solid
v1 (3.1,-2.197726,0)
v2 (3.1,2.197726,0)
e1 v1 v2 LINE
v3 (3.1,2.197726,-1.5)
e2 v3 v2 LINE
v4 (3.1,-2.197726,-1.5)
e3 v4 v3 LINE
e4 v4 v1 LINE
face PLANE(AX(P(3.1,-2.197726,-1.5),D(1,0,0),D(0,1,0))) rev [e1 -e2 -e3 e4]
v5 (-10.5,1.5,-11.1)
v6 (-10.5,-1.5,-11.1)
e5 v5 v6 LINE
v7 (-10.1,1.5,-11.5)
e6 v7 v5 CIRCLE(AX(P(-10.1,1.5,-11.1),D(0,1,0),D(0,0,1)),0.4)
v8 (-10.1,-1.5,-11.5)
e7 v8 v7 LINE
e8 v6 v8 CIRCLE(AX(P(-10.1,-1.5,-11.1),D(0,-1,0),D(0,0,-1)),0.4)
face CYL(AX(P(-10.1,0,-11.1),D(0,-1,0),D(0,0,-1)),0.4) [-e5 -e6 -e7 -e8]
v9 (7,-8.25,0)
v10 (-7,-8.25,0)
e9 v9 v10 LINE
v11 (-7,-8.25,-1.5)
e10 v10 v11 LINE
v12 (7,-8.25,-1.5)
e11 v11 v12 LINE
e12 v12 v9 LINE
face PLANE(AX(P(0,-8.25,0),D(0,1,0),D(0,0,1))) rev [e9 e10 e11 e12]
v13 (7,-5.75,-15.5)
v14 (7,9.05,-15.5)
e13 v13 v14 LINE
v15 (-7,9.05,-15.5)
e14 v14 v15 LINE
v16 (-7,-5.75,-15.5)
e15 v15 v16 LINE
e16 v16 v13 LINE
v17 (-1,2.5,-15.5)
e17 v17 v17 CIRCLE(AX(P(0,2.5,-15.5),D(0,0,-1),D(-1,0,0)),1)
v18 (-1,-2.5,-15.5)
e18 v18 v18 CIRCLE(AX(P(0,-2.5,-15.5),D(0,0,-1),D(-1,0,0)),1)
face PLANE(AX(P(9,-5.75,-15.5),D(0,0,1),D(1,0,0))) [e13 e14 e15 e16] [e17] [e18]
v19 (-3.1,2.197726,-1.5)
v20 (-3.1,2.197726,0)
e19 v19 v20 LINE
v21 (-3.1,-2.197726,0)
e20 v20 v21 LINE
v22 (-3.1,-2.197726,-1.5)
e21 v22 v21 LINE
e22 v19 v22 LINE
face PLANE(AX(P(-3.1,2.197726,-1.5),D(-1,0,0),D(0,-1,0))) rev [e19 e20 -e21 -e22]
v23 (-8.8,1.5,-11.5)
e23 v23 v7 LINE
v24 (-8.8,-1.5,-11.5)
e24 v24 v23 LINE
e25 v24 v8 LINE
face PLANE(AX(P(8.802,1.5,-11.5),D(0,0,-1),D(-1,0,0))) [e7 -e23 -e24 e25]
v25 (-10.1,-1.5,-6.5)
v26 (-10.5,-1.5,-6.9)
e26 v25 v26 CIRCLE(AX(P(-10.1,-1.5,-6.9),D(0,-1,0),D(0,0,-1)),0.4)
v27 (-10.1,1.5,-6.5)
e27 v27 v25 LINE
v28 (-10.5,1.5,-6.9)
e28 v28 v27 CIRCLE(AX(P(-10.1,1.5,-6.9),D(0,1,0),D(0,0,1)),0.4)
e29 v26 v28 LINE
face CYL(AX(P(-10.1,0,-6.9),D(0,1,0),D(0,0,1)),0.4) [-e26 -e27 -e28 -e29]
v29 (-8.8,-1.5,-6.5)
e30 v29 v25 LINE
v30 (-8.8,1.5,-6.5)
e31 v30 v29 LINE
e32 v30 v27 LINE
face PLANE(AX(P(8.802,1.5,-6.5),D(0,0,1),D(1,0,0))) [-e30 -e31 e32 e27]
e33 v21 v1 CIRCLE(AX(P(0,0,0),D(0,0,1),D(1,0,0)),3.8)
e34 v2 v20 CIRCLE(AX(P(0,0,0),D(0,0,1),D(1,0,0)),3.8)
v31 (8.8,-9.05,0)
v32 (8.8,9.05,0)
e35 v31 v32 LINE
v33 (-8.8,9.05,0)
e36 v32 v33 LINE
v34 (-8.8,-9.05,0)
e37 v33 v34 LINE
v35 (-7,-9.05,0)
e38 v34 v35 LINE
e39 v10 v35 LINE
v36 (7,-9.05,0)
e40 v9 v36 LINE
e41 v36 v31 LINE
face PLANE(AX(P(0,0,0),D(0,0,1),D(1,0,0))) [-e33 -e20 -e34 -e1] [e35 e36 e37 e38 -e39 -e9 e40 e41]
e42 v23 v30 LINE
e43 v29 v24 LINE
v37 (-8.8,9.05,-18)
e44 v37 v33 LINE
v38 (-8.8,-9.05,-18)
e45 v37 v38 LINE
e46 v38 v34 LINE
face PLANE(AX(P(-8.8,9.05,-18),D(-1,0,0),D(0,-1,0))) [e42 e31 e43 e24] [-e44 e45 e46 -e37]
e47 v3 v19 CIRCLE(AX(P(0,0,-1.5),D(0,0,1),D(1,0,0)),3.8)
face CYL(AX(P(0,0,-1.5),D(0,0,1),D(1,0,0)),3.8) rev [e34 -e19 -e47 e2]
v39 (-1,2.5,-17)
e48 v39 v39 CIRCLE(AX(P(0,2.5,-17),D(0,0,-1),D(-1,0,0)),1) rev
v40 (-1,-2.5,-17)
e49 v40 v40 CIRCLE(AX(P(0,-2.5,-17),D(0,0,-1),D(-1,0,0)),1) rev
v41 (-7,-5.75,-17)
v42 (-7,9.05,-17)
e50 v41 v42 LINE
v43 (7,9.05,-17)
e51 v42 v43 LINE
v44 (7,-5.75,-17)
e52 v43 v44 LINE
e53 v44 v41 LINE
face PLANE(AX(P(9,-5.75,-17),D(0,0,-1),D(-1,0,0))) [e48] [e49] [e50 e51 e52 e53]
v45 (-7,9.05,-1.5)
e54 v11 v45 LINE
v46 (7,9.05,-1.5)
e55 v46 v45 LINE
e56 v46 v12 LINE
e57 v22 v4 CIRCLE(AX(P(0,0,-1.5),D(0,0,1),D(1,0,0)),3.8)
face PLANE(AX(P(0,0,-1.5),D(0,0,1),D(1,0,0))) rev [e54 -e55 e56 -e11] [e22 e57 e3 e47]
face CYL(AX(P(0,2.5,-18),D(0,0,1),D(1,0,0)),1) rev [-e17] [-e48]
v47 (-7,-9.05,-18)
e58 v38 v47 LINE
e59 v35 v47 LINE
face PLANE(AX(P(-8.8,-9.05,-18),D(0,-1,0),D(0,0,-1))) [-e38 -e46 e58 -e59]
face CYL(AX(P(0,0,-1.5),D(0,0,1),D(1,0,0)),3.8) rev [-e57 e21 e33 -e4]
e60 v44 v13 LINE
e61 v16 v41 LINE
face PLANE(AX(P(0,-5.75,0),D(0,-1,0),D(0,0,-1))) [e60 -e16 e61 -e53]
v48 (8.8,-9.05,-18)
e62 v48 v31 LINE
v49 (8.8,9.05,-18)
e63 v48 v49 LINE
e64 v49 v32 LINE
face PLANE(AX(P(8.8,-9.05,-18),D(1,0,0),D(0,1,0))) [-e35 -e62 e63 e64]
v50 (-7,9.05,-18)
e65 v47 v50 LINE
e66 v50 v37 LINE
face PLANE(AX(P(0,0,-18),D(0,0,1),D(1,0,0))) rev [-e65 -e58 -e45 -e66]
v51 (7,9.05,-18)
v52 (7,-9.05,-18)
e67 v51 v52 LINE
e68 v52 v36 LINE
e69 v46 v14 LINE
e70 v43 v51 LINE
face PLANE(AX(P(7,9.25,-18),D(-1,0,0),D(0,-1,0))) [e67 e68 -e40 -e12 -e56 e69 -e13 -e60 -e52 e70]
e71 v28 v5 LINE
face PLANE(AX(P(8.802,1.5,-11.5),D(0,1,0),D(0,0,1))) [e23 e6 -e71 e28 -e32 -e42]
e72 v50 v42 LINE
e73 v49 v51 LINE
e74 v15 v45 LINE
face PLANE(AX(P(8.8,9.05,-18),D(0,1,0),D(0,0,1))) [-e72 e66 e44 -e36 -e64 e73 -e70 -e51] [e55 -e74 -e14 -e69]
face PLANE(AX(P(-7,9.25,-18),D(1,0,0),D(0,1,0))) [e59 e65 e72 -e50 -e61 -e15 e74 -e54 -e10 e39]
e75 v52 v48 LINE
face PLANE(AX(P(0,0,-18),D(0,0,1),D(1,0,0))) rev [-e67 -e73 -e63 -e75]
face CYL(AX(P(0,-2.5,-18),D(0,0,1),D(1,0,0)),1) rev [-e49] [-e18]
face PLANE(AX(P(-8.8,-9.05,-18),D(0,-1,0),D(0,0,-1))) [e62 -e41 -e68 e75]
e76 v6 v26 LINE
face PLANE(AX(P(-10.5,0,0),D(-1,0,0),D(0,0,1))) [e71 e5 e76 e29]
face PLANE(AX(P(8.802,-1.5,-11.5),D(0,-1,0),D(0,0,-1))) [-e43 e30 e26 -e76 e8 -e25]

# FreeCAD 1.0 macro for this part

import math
import FreeCAD as App
import Part
import Sketcher
from FreeCAD import Vector
Q = App.Units.Quantity


def edges_at(feature, points):
    """Names of the edges that pass closest to the given points."""
    edges = feature.Shape.Edges
    near = lambda p: min(range(len(edges)), key=lambda i: edges[i].distToShape(Part.Vertex(*p))[0])
    return sorted({f"Edge{near(p) + 1}" for p in points})


def add_polygon(sketch, points):
    """Adds a closed chain of lines whose ends are joined by coincident constraints."""
    first, n = sketch.GeometryCount, len(points)
    for a, b in zip(points, points[1:] + points[:1]):
        sketch.addGeometry(Part.LineSegment(App.Vector(*a, 0), App.Vector(*b, 0)), False)
    for i in range(n):
        sketch.addConstraint(Sketcher.Constraint("Coincident", first + i, 2, first + (i + 1) % n, 1))

doc = App.newDocument("Part")
params = doc.addObject("Spreadsheet::Sheet", "Params")
for row, (alias, value) in enumerate([
    ("sketch1_radius", "3.8 mm"),
    ("sketch1_width", "18 mm"),
    ("sketch1_height", "18.5 mm"),
    ("pad1_length", "1.5 mm"),
    ("sketch2_width", "2 mm"),
    ("sketch2_height", "18.5 mm"),
    ("pad2_length", "18 mm"),
    ("sketch3_width", "18 mm"),
    ("sketch3_height", "1.5 mm"),
    ("pad3_length", "15 mm"),
    ("sketch4_diameter", "2 mm"),
    ("sketch5_width", "14 mm"),
    ("sketch5_height", "1.5 mm"),
    ("pocket2_length", "1 mm"),
    ("sketch6_width", "27.6 mm"),
    ("sketch6_width2", "17.6 mm"),
    ("sketch6_height", "28.1 mm"),
    ("sketch6_height2", "18.1 mm"),
    ("sketch7_width", "3 mm"),
    ("sketch7_height", "5 mm"),
    ("pad4_length", "1.5 mm"),
    ("sketch8_width", "3 mm"),
    ("sketch8_height", "5 mm"),
    ("fillet_radius", "0.4 mm"),
], start=1):
    params.set(f"A{row}", alias)
    params.set(f"B{row}", "=" + value)
    params.setAlias(f"B{row}", alias)

body = doc.addObject("PartDesign::Body", "Body")
body.AllowCompound = True

# Sketch on XY plane
sketch1 = body.newObject("Sketcher::SketchObject", "Sketch")
sketch1.AttachmentSupport = (doc.getObject("XY_Plane"), [""])
sketch1.MapMode = "FlatFace"
add_polygon(sketch1, [(-9, 9.2), (-9, -9.2), (9, -9.2), (9, 9.2)])  # lines 0-3
sketch1.addGeometry(Part.LineSegment(Vector(3.1, 2.2, 0), Vector(3.1, -2.2, 0)), False)  # 4
sketch1.addGeometry(Part.ArcOfCircle(Part.Circle(Vector(0, 0, 0), Vector(0, 0, 1), 3.8), math.radians(-145), math.radians(-35)), False)  # 5
sketch1.addGeometry(Part.LineSegment(Vector(-3.1, -2.2, 0), Vector(-3.1, 2.2, 0)), False)  # 6
sketch1.addGeometry(Part.ArcOfCircle(Part.Circle(Vector(0, 0, 0), Vector(0, 0, 1), 3.8), math.radians(35), math.radians(145)), False)  # 7
sketch1.addConstraint(Sketcher.Constraint("Coincident", 4, 2, 5, 2))
sketch1.addConstraint(Sketcher.Constraint("Coincident", 5, 1, 6, 1))
sketch1.addConstraint(Sketcher.Constraint("Coincident", 6, 2, 7, 2))
sketch1.addConstraint(Sketcher.Constraint("Coincident", 7, 1, 4, 1))
sketch1.addConstraint(Sketcher.Constraint("Vertical", 0))
sketch1.addConstraint(Sketcher.Constraint("Horizontal", 1))
sketch1.addConstraint(Sketcher.Constraint("Vertical", 2))
sketch1.addConstraint(Sketcher.Constraint("Horizontal", 3))
sketch1.addConstraint(Sketcher.Constraint("Vertical", 4))
sketch1.addConstraint(Sketcher.Constraint("Vertical", 6))
sketch1.addConstraint(Sketcher.Constraint("Coincident", 5, 3, -1, 1))
sketch1.addConstraint(Sketcher.Constraint("Coincident", 7, 3, -1, 1))
sketch1.addConstraint(Sketcher.Constraint("Equal", 5, 7))
sketch1.addConstraint(Sketcher.Constraint("Symmetric", 0, 2, 2, 2, -1, 1))
sketch1.addConstraint(Sketcher.Constraint("Horizontal", 4, 2, 5, 1))
sketch1.addConstraint(Sketcher.Constraint("Radius", 5, Q("3.8 mm")))
sketch1.addConstraint(Sketcher.Constraint("DistanceX", 1, 1, 1, 2, Q("18 mm")))
sketch1.addConstraint(Sketcher.Constraint("DistanceY", 0, 2, 0, 1, Q("18.5 mm")))
sketch1.addConstraint(Sketcher.Constraint("DistanceX", -1, 1, 4, 2, Q("3.1 mm")))
sketch1.setExpression("Constraints[19]", "Params.sketch1_radius")
sketch1.setExpression("Constraints[20]", "Params.sketch1_width")
sketch1.setExpression("Constraints[21]", "Params.sketch1_height")
pad1 = body.newObject("PartDesign::Pad", "Pad")
pad1.Profile = sketch1
pad1.setExpression("Length", "Params.pad1_length")
pad1.Reversed = True

# Sketch on XY plane
sketch2 = body.newObject("Sketcher::SketchObject", "Sketch001")
sketch2.AttachmentSupport = (doc.getObject("XY_Plane"), [""])
sketch2.MapMode = "FlatFace"
add_polygon(sketch2, [(-9, 9.2), (-9, -9.2), (-7, -9.2), (-7, 9.2)])  # lines 0-3
add_polygon(sketch2, [(7, 9.2), (7, -9.2), (9, -9.2), (9, 9.2)])  # lines 4-7
sketch2.addConstraint(Sketcher.Constraint("Vertical", 0))
sketch2.addConstraint(Sketcher.Constraint("Horizontal", 1))
sketch2.addConstraint(Sketcher.Constraint("Vertical", 2))
sketch2.addConstraint(Sketcher.Constraint("Horizontal", 3))
sketch2.addConstraint(Sketcher.Constraint("Vertical", 4))
sketch2.addConstraint(Sketcher.Constraint("Horizontal", 5))
sketch2.addConstraint(Sketcher.Constraint("Vertical", 6))
sketch2.addConstraint(Sketcher.Constraint("Horizontal", 7))
sketch2.addConstraint(Sketcher.Constraint("Symmetric", 2, 2, 4, 2, -1, 1))
sketch2.addConstraint(Sketcher.Constraint("Symmetric", 0, 2, 6, 2, -1, 1))
sketch2.addConstraint(Sketcher.Constraint("Horizontal", 1, 2, 4, 2))
sketch2.addConstraint(Sketcher.Constraint("DistanceX", 1, 1, 1, 2, Q("2 mm")))
sketch2.addConstraint(Sketcher.Constraint("DistanceY", 0, 2, 0, 1, Q("18.5 mm")))
sketch2.addConstraint(Sketcher.Constraint("DistanceX", 0, 2, -1, 1, Q("9 mm")))
sketch2.setExpression("Constraints[19]", "Params.sketch2_width")
sketch2.setExpression("Constraints[20]", "Params.sketch2_height")
pad2 = body.newObject("PartDesign::Pad", "Pad001")
pad2.Profile = sketch2
pad2.setExpression("Length", "Params.pad2_length")
pad2.Reversed = True

# Sketch on XZ plane
sketch3 = body.newObject("Sketcher::SketchObject", "Sketch002")
sketch3.AttachmentSupport = (doc.getObject("XZ_Plane"), [""])
sketch3.MapMode = "FlatFace"
sketch3.AttachmentOffset = App.Placement(Vector(0, 0, -9.25), App.Rotation())
add_polygon(sketch3, [(-9, -17), (-9, -15.5), (9, -15.5), (9, -17)])  # lines 0-3
sketch3.addConstraint(Sketcher.Constraint("Vertical", 0))
sketch3.addConstraint(Sketcher.Constraint("Horizontal", 1))
sketch3.addConstraint(Sketcher.Constraint("Vertical", 2))
sketch3.addConstraint(Sketcher.Constraint("Horizontal", 3))
sketch3.addConstraint(Sketcher.Constraint("DistanceX", 1, 1, 1, 2, Q("18 mm")))
sketch3.addConstraint(Sketcher.Constraint("DistanceY", 0, 1, 0, 2, Q("1.5 mm")))
sketch3.addConstraint(Sketcher.Constraint("DistanceX", 0, 2, -1, 1, Q("9 mm")))
sketch3.addConstraint(Sketcher.Constraint("DistanceY", 2, 2, -1, 1, Q("17 mm")))
sketch3.setExpression("Constraints[8]", "Params.sketch3_width")
sketch3.setExpression("Constraints[9]", "Params.sketch3_height")
pad3 = body.newObject("PartDesign::Pad", "Pad002")
pad3.Profile = sketch3
pad3.setExpression("Length", "Params.pad3_length")

# Sketch on XY plane
sketch4 = body.newObject("Sketcher::SketchObject", "Sketch003")
sketch4.AttachmentSupport = (doc.getObject("XY_Plane"), [""])
sketch4.MapMode = "FlatFace"
sketch4.AttachmentOffset = App.Placement(Vector(0, 0, -15.5), App.Rotation())
sketch4.addGeometry(Part.Circle(Vector(0, 2.5, 0), Vector(0, 0, 1), 1), False)
sketch4.addGeometry(Part.Circle(Vector(0, -2.5, 0), Vector(0, 0, 1), 1), False)
sketch4.addConstraint(Sketcher.Constraint("Equal", 0, 1))
sketch4.addConstraint(Sketcher.Constraint("Symmetric", 0, 3, 1, 3, -1, 1))
sketch4.addConstraint(Sketcher.Constraint("PointOnObject", 0, 3, -2))
sketch4.addConstraint(Sketcher.Constraint("Diameter", 0, Q("2 mm")))
sketch4.addConstraint(Sketcher.Constraint("DistanceY", 1, 3, 0, 3, Q("5 mm")))
sketch4.setExpression("Constraints[3]", "Params.sketch4_diameter")
pocket1 = body.newObject("PartDesign::Pocket", "Pocket")
pocket1.Profile = sketch4
pocket1.Type = "ThroughAll"

# Sketch on XZ plane
sketch5 = body.newObject("Sketcher::SketchObject", "Sketch004")
sketch5.AttachmentSupport = (doc.getObject("XZ_Plane"), [""])
sketch5.MapMode = "FlatFace"
sketch5.AttachmentOffset = App.Placement(Vector(0, 0, 9.25), App.Rotation())
add_polygon(sketch5, [(-7, 0), (-7, -1.5), (7, -1.5), (7, 0)])  # lines 0-3
sketch5.addConstraint(Sketcher.Constraint("Vertical", 0))
sketch5.addConstraint(Sketcher.Constraint("Horizontal", 1))
sketch5.addConstraint(Sketcher.Constraint("Vertical", 2))
sketch5.addConstraint(Sketcher.Constraint("Horizontal", 3))
sketch5.addConstraint(Sketcher.Constraint("Symmetric", 2, 2, 3, 2, -1, 1))
sketch5.addConstraint(Sketcher.Constraint("DistanceX", 1, 1, 1, 2, Q("14 mm")))
sketch5.addConstraint(Sketcher.Constraint("DistanceY", 0, 2, 0, 1, Q("1.5 mm")))
sketch5.setExpression("Constraints[9]", "Params.sketch5_width")
sketch5.setExpression("Constraints[10]", "Params.sketch5_height")
pocket2 = body.newObject("PartDesign::Pocket", "Pocket001")
pocket2.Profile = sketch5
pocket2.setExpression("Length", "Params.pocket2_length")

# Sketch on XY plane
sketch6 = body.newObject("Sketcher::SketchObject", "Sketch005")
sketch6.AttachmentSupport = (doc.getObject("XY_Plane"), [""])
sketch6.MapMode = "FlatFace"
add_polygon(sketch6, [(-14, 14), (-14, -14), (14, -14), (14, 14)])  # lines 0-3
add_polygon(sketch6, [(9, -9), (-9, -9), (-9, 9), (9, 9)])  # lines 4-7
sketch6.addConstraint(Sketcher.Constraint("Vertical", 0))
sketch6.addConstraint(Sketcher.Constraint("Horizontal", 1))
sketch6.addConstraint(Sketcher.Constraint("Vertical", 2))
sketch6.addConstraint(Sketcher.Constraint("Horizontal", 3))
sketch6.addConstraint(Sketcher.Constraint("Horizontal", 4))
sketch6.addConstraint(Sketcher.Constraint("Vertical", 5))
sketch6.addConstraint(Sketcher.Constraint("Horizontal", 6))
sketch6.addConstraint(Sketcher.Constraint("Vertical", 7))
sketch6.addConstraint(Sketcher.Constraint("Symmetric", 0, 2, 2, 2, -1, 1))
sketch6.addConstraint(Sketcher.Constraint("Symmetric", 4, 2, 6, 2, -1, 1))
sketch6.addConstraint(Sketcher.Constraint("DistanceX", 1, 1, 1, 2, Q("27.6 mm")))
sketch6.addConstraint(Sketcher.Constraint("DistanceX", 4, 2, 4, 1, Q("17.6 mm")))
sketch6.addConstraint(Sketcher.Constraint("DistanceY", 0, 2, 0, 1, Q("28.1 mm")))
sketch6.addConstraint(Sketcher.Constraint("DistanceY", 5, 1, 5, 2, Q("18.1 mm")))
sketch6.setExpression("Constraints[18]", "Params.sketch6_width")
sketch6.setExpression("Constraints[19]", "Params.sketch6_width2")
sketch6.setExpression("Constraints[20]", "Params.sketch6_height")
sketch6.setExpression("Constraints[21]", "Params.sketch6_height2")
pocket3 = body.newObject("PartDesign::Pocket", "Pocket002")
pocket3.Profile = sketch6
pocket3.Type = "ThroughAll"

# Sketch on YZ plane
sketch7 = body.newObject("Sketcher::SketchObject", "Sketch006")
sketch7.AttachmentSupport = (doc.getObject("YZ_Plane"), [""])
sketch7.MapMode = "FlatFace"
sketch7.AttachmentOffset = App.Placement(Vector(0, 0, -9), App.Rotation())
add_polygon(sketch7, [(1.5, -11.5), (-1.5, -11.5), (-1.5, -6.5), (1.5, -6.5)])  # lines 0-3
sketch7.addConstraint(Sketcher.Constraint("Horizontal", 0))
sketch7.addConstraint(Sketcher.Constraint("Vertical", 1))
sketch7.addConstraint(Sketcher.Constraint("Horizontal", 2))
sketch7.addConstraint(Sketcher.Constraint("Vertical", 3))
sketch7.addConstraint(Sketcher.Constraint("DistanceX", 0, 2, 0, 1, Q("3 mm")))
sketch7.addConstraint(Sketcher.Constraint("DistanceY", 1, 1, 1, 2, Q("5 mm")))
sketch7.addConstraint(Sketcher.Constraint("DistanceX", 0, 2, -1, 1, Q("1.5 mm")))
sketch7.addConstraint(Sketcher.Constraint("DistanceY", 0, 2, -1, 1, Q("11.5 mm")))
sketch7.setExpression("Constraints[8]", "Params.sketch7_width")
sketch7.setExpression("Constraints[9]", "Params.sketch7_height")
pad4 = body.newObject("PartDesign::Pad", "Pad003")
pad4.Profile = sketch7
pad4.setExpression("Length", "Params.pad4_length")
pad4.Reversed = True

# Sketch on YZ plane
sketch8 = body.newObject("Sketcher::SketchObject", "Sketch007")
sketch8.AttachmentSupport = (doc.getObject("YZ_Plane"), [""])
sketch8.MapMode = "FlatFace"
sketch8.AttachmentOffset = App.Placement(Vector(0, 0, -9), App.Rotation())
add_polygon(sketch8, [(1.5, -11.5), (-1.5, -11.5), (-1.5, -6.5), (1.5, -6.5)])  # lines 0-3
sketch8.addConstraint(Sketcher.Constraint("Horizontal", 0))
sketch8.addConstraint(Sketcher.Constraint("Vertical", 1))
sketch8.addConstraint(Sketcher.Constraint("Horizontal", 2))
sketch8.addConstraint(Sketcher.Constraint("Vertical", 3))
sketch8.addConstraint(Sketcher.Constraint("DistanceX", 0, 2, 0, 1, Q("3 mm")))
sketch8.addConstraint(Sketcher.Constraint("DistanceY", 1, 1, 1, 2, Q("5 mm")))
sketch8.addConstraint(Sketcher.Constraint("DistanceX", 0, 2, -1, 1, Q("1.5 mm")))
sketch8.addConstraint(Sketcher.Constraint("DistanceY", 0, 2, -1, 1, Q("11.5 mm")))
sketch8.setExpression("Constraints[8]", "Params.sketch8_width")
sketch8.setExpression("Constraints[9]", "Params.sketch8_height")
pad5 = body.newObject("PartDesign::Pad", "Pad004")
pad5.Profile = sketch8
pad5.Type = "UpToFirst"
doc.recompute()

fillet = body.newObject("PartDesign::Fillet", "Fillet")
fillet.Base = (pad5, edges_at(pad5, [(-10.5, 0, -11.5), (-10.5, 0, -6.5)]))
fillet.setExpression("Radius", "Params.fillet_radius")

doc.recompute()
